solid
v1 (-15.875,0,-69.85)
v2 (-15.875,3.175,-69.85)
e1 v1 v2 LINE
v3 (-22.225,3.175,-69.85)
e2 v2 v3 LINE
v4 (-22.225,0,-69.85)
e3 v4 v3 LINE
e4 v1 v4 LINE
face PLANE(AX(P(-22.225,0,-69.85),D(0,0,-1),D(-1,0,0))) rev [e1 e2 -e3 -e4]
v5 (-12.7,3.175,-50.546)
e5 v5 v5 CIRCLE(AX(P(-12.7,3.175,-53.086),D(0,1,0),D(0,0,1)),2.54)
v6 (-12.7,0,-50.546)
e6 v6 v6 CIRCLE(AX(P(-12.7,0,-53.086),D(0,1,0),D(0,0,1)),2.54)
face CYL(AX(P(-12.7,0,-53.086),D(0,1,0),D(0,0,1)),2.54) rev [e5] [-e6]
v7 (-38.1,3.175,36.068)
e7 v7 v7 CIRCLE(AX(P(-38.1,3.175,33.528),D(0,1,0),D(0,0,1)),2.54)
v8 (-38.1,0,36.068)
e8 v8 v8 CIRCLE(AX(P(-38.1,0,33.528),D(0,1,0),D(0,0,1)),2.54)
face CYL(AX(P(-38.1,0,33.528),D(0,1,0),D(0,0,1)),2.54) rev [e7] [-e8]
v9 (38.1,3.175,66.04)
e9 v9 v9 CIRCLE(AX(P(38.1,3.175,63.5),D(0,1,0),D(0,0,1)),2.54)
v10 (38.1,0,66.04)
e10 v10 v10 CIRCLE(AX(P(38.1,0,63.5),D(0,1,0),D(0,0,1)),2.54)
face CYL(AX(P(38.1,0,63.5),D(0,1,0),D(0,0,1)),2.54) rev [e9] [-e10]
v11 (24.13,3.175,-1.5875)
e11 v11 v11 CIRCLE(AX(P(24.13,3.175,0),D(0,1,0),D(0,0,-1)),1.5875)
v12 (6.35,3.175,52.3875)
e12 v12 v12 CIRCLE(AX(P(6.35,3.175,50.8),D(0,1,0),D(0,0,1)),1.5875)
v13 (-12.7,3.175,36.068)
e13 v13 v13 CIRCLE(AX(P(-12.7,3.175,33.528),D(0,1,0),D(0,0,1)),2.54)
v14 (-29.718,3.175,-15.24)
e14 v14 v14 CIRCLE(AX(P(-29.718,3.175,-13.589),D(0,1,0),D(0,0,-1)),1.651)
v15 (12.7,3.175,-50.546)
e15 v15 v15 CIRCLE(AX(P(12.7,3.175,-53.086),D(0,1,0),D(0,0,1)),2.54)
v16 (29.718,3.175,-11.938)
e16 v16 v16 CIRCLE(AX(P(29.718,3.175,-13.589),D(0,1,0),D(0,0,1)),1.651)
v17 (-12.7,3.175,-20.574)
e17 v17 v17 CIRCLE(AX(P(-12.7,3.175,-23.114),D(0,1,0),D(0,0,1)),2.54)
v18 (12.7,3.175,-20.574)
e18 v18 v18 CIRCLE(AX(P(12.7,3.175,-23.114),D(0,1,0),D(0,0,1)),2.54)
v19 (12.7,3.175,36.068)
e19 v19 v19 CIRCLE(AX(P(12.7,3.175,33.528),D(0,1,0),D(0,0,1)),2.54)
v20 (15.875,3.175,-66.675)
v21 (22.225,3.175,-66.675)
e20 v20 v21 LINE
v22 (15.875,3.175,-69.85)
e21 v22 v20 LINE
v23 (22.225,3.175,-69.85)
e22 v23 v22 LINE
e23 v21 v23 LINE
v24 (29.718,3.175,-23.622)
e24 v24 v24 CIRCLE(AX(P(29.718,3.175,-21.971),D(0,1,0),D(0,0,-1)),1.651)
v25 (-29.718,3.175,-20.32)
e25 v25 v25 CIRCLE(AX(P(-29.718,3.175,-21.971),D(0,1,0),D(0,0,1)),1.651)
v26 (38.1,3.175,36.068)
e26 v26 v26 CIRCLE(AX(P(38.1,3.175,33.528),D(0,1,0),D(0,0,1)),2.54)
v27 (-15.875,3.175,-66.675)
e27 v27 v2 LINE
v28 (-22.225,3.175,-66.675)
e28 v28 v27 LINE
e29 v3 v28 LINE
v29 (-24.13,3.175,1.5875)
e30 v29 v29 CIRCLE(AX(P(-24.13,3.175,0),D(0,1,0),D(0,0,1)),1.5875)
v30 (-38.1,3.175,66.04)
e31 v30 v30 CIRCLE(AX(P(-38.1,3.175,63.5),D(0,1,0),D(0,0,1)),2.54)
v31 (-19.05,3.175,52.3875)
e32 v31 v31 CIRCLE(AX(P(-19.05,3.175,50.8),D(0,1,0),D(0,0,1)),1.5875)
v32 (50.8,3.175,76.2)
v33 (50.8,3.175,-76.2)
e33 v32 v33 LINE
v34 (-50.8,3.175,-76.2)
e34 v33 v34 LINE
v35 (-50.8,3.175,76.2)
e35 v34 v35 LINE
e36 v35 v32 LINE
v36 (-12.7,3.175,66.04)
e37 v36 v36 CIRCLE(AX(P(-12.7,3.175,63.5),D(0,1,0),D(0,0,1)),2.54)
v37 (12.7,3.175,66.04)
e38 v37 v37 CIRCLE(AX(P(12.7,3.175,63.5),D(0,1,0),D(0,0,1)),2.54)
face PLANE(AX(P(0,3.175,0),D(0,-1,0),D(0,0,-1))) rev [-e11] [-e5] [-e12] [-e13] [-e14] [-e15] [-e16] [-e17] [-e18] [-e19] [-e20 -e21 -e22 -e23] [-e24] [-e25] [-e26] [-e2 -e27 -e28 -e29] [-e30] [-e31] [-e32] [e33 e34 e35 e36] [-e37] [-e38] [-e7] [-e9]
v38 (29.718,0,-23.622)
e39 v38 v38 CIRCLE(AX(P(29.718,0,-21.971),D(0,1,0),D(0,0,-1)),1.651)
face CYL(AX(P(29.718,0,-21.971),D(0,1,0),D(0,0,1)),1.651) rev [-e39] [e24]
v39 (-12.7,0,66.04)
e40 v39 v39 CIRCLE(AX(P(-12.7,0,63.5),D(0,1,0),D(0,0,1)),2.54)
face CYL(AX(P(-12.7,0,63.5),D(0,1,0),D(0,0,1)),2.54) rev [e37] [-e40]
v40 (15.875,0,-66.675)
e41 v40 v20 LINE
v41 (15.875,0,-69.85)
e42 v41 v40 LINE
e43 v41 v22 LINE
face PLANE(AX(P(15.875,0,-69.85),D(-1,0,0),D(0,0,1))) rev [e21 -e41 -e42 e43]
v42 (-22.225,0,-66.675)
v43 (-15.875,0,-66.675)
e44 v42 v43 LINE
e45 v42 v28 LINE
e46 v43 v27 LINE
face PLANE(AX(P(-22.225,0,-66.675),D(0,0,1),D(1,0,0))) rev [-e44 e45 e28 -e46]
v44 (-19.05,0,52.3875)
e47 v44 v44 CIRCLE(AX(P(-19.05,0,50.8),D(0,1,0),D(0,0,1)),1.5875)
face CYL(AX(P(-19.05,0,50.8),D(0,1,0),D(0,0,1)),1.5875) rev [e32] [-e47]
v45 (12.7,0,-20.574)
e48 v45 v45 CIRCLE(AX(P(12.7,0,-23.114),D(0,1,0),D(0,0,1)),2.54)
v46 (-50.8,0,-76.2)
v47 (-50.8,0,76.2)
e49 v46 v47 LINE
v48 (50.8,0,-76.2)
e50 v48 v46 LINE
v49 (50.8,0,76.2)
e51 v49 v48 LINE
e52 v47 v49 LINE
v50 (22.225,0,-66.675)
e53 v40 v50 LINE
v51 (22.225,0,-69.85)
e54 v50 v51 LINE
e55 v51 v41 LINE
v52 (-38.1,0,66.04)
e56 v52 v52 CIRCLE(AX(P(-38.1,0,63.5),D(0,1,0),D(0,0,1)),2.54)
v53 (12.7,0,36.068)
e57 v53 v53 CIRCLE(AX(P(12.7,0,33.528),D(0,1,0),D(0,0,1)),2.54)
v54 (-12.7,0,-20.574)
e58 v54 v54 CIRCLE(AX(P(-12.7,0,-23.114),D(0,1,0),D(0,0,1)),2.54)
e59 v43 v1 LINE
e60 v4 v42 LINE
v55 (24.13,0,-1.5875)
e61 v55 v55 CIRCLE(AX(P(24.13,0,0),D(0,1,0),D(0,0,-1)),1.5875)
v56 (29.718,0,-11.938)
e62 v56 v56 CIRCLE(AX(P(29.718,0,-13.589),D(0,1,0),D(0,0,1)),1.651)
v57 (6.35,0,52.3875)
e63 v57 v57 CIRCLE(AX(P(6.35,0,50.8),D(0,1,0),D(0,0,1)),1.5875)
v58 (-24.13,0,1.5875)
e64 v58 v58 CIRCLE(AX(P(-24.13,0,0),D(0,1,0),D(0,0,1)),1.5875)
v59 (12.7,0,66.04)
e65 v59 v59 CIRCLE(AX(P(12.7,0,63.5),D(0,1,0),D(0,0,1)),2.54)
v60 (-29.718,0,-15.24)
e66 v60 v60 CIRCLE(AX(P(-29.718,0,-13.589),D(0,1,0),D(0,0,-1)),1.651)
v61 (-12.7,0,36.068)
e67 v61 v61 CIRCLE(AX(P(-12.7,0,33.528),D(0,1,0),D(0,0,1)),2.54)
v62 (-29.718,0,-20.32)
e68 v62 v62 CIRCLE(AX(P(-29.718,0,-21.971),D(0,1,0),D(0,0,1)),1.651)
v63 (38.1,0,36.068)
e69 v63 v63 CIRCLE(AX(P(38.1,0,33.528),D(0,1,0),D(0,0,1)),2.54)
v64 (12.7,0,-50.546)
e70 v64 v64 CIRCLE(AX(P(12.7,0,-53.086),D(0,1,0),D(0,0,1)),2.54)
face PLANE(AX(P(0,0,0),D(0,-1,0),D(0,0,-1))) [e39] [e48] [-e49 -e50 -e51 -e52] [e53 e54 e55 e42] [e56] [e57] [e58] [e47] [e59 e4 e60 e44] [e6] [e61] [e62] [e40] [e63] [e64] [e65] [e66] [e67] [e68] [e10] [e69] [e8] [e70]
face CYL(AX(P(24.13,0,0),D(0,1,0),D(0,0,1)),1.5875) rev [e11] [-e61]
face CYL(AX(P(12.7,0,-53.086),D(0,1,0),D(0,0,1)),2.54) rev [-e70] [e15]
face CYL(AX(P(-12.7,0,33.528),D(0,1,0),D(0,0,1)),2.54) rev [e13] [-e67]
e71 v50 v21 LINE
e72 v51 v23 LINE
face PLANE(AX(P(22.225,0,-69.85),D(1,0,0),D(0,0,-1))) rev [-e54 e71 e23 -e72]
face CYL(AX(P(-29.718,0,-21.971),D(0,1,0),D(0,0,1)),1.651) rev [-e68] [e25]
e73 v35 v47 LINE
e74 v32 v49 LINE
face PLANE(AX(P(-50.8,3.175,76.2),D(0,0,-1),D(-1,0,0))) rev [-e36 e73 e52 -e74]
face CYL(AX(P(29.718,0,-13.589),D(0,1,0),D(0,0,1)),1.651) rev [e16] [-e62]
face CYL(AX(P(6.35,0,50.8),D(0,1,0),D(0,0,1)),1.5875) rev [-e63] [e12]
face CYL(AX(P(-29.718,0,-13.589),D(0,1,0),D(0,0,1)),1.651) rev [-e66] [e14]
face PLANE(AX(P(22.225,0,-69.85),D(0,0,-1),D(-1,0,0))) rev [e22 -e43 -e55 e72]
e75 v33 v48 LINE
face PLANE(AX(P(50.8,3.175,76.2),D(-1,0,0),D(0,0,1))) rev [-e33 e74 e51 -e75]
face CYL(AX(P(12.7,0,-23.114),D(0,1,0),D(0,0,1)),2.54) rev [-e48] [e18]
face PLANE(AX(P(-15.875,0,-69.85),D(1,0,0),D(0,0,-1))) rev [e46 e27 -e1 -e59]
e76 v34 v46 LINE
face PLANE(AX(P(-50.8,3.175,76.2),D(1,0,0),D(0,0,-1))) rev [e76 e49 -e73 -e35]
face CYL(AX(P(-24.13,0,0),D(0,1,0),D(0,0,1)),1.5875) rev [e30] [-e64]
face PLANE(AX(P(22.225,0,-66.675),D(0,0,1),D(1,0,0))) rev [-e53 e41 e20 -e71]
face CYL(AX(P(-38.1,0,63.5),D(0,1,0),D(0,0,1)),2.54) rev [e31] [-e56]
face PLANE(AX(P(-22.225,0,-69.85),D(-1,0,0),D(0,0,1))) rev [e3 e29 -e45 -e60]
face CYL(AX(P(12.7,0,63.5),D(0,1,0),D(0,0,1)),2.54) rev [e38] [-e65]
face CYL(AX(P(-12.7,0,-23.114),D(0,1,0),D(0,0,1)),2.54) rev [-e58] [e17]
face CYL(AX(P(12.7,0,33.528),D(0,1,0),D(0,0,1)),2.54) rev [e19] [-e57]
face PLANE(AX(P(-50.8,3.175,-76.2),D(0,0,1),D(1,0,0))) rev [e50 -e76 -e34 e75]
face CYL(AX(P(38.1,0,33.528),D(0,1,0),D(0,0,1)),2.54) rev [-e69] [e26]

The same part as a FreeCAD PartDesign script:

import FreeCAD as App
import Part
import Sketcher
Q = App.Units.Quantity

doc = App.newDocument("Part")
body = doc.addObject("PartDesign::Body", "Body")

# Sketch on XZ plane
sketch1 = doc.addObject("Sketcher::SketchObject", "Sketch")
body.addObject(sketch1)
sketch1.AttachmentSupport = (doc.XZ_Plane, [""])
sketch1.MapMode = "FlatFace"
sketch1.addGeometry([
    Part.LineSegment(App.Vector(-51, -76, 0), App.Vector(-51, 76, 0)),
    Part.LineSegment(App.Vector(-51, 76, 0), App.Vector(51, 76, 0)),
    Part.LineSegment(App.Vector(51, 76, 0), App.Vector(51, -76, 0)),
    Part.LineSegment(App.Vector(51, -76, 0), App.Vector(-51, -76, 0)),
], False)
sketch1.addConstraint([
    Sketcher.Constraint("Coincident", 0, 2, 1, 1),
    Sketcher.Constraint("Coincident", 1, 2, 2, 1),
    Sketcher.Constraint("Coincident", 2, 2, 3, 1),
    Sketcher.Constraint("Coincident", 3, 2, 0, 1),
    Sketcher.Constraint("Vertical", 0),
    Sketcher.Constraint("Horizontal", 1),
    Sketcher.Constraint("Vertical", 2),
    Sketcher.Constraint("Horizontal", 3),
    Sketcher.Constraint("Symmetric", 0, 2, 2, 2, -1, 1),
    Sketcher.Constraint("DistanceX", 1, 1, 1, 2, Q("4 in")),
    Sketcher.Constraint("DistanceY", 0, 1, 0, 2, Q("6 in")),
])
pad1 = doc.addObject("PartDesign::Pad", "Pad")
body.addObject(pad1)
pad1.Profile = sketch1
pad1.Length = Q("0.125 in")
pad1.Reversed = True

# Sketch on XZ plane
sketch2 = doc.addObject("Sketcher::SketchObject", "Sketch001")
body.addObject(sketch2)
sketch2.AttachmentSupport = (doc.XZ_Plane, [""])
sketch2.MapMode = "FlatFace"
sketch2.AttachmentOffset = App.Placement(App.Vector(0, 0, -0.125 * 25.4), App.Rotation())
sketch2.addGeometry([
    Part.Circle(App.Vector(-38.1, 63.5, 0), App.Vector(0, 0, 1), 2.5),  # 0
    Part.Circle(App.Vector(-12.7, 63.5, 0), App.Vector(0, 0, 1), 2.5),  # 1
    Part.Circle(App.Vector(12.7, 63.5, 0), App.Vector(0, 0, 1), 2.5),  # 2
    Part.Circle(App.Vector(38.1, 63.5, 0), App.Vector(0, 0, 1), 2.5),  # 3
    Part.Circle(App.Vector(-38.1, 33.5, 0), App.Vector(0, 0, 1), 2.5),  # 4
    Part.Circle(App.Vector(-12.7, 33.5, 0), App.Vector(0, 0, 1), 2.5),  # 5
    Part.Circle(App.Vector(12.7, 33.5, 0), App.Vector(0, 0, 1), 2.5),  # 6
    Part.Circle(App.Vector(38.1, 33.5, 0), App.Vector(0, 0, 1), 2.5),  # 7
    Part.Circle(App.Vector(-12.7, -53.1, 0), App.Vector(0, 0, 1), 2.5),  # 8
    Part.Circle(App.Vector(-12.7, -23.1, 0), App.Vector(0, 0, 1), 2.5),  # 9
    Part.Circle(App.Vector(12.7, -23.1, 0), App.Vector(0, 0, 1), 2.5),  # 10
    Part.Circle(App.Vector(12.7, -53.1, 0), App.Vector(0, 0, 1), 2.5),  # 11
], False)
sketch2.addConstraint([
    Sketcher.Constraint("Equal", 0, 1),
    Sketcher.Constraint("Equal", 1, 2),
    Sketcher.Constraint("Equal", 2, 3),
    Sketcher.Constraint("Equal", 3, 4),
    Sketcher.Constraint("Equal", 4, 5),
    Sketcher.Constraint("Equal", 5, 6),
    Sketcher.Constraint("Equal", 6, 7),
    Sketcher.Constraint("Equal", 7, 8),
    Sketcher.Constraint("Equal", 8, 9),
    Sketcher.Constraint("Equal", 9, 10),
    Sketcher.Constraint("Equal", 10, 11),
    Sketcher.Constraint("Symmetric", 1, 3, 2, 3, -2),
    Sketcher.Constraint("Symmetric", 0, 3, 3, 3, -2),
    Sketcher.Constraint("Symmetric", 5, 3, 6, 3, -2),
    Sketcher.Constraint("Symmetric", 4, 3, 7, 3, -2),
    Sketcher.Constraint("Symmetric", 9, 3, 10, 3, -2),
    Sketcher.Constraint("Symmetric", 8, 3, 11, 3, -2),
    Sketcher.Constraint("Horizontal", 0, 3, 1, 3),
    Sketcher.Constraint("Horizontal", 4, 3, 5, 3),
    Sketcher.Constraint("Vertical", 0, 3, 4, 3),
    Sketcher.Constraint("Vertical", 1, 3, 5, 3),
    Sketcher.Constraint("Vertical", 5, 3, 8, 3),
    Sketcher.Constraint("Vertical", 8, 3, 9, 3),
    Sketcher.Constraint("Diameter", 0, Q("0.2 in")),
    Sketcher.Constraint("DistanceX", 0, 3, 1, 3, Q("1 in")),
    Sketcher.Constraint("DistanceX", 1, 3, 2, 3, Q("1 in")),
    Sketcher.Constraint("DistanceY", -1, 1, 0, 3, Q("2.5 in")),
    Sketcher.Constraint("DistanceY", -1, 1, 4, 3, Q("1.32 in")),
    Sketcher.Constraint("DistanceY", 8, 3, -1, 1, Q("2.09 in")),
    Sketcher.Constraint("DistanceY", 9, 3, -1, 1, Q("0.91 in")),
])
pocket1 = doc.addObject("PartDesign::Pocket", "Pocket")
body.addObject(pocket1)
pocket1.Profile = sketch2
pocket1.Type = "ThroughAll"
pocket1.Reversed = True

# Sketch on XZ plane
sketch3 = doc.addObject("Sketcher::SketchObject", "Sketch002")
body.addObject(sketch3)
sketch3.AttachmentSupport = (doc.XZ_Plane, [""])
sketch3.MapMode = "FlatFace"
sketch3.AttachmentOffset = App.Placement(App.Vector(0, 0, -0.125 * 25.4), App.Rotation())
sketch3.addGeometry([
    Part.Circle(App.Vector(29.7, -13.6, 0), App.Vector(0, 0, 1), 1.7),
    Part.Circle(App.Vector(29.7, -22, 0), App.Vector(0, 0, 1), 1.7),
    Part.Circle(App.Vector(-29.7, -22, 0), App.Vector(0, 0, 1), 1.7),
    Part.Circle(App.Vector(-29.7, -13.6, 0), App.Vector(0, 0, 1), 1.7),
], False)
sketch3.addConstraint([
    Sketcher.Constraint("Equal", 0, 1),
    Sketcher.Constraint("Equal", 1, 2),
    Sketcher.Constraint("Equal", 2, 3),
    Sketcher.Constraint("Symmetric", 1, 3, 2, 3, -2),
    Sketcher.Constraint("Symmetric", 0, 3, 3, 3, -2),
    Sketcher.Constraint("Vertical", 0, 3, 1, 3),
    Sketcher.Constraint("Diameter", 0, Q("0.13 in")),
    Sketcher.Constraint("DistanceX", -1, 1, 0, 3, Q("1.17 in")),
    Sketcher.Constraint("DistanceY", 1, 3, 0, 3, Q("0.33 in")),
    Sketcher.Constraint("DistanceY", 0, 3, -1, 1, Q("0.535 in")),
])
pocket2 = doc.addObject("PartDesign::Pocket", "Pocket001")
body.addObject(pocket2)
pocket2.Profile = sketch3
pocket2.Type = "ThroughAll"
pocket2.Reversed = True

# Sketch on XZ plane
sketch4 = doc.addObject("Sketcher::SketchObject", "Sketch003")
body.addObject(sketch4)
sketch4.AttachmentSupport = (doc.XZ_Plane, [""])
sketch4.MapMode = "FlatFace"
sketch4.AttachmentOffset = App.Placement(App.Vector(0, 0, -0.125 * 25.4), App.Rotation())
sketch4.addGeometry([
    Part.Circle(App.Vector(-24.1, 0, 0), App.Vector(0, 0, 1), 1.6),
    Part.Circle(App.Vector(24.1, 0, 0), App.Vector(0, 0, 1), 1.6),
    Part.Circle(App.Vector(-19.1, 50.8, 0), App.Vector(0, 0, 1), 1.6),
    Part.Circle(App.Vector(6.3, 50.8, 0), App.Vector(0, 0, 1), 1.6),
], False)
sketch4.addConstraint([
    Sketcher.Constraint("Equal", 0, 1),
    Sketcher.Constraint("Equal", 1, 2),
    Sketcher.Constraint("Equal", 2, 3),
    Sketcher.Constraint("Symmetric", 0, 3, 1, 3, -1, 1),
    Sketcher.Constraint("PointOnObject", 0, 3, -1),
    Sketcher.Constraint("Horizontal", 2, 3, 3, 3),
    Sketcher.Constraint("Diameter", 0, Q("0.125 in")),
    Sketcher.Constraint("DistanceY", -1, 1, 2, 3, Q("2 in")),
    Sketcher.Constraint("DistanceX", 2, 3, 3, 3, Q("1 in")),
    Sketcher.Constraint("DistanceX", 0, 3, 1, 3, Q("1.9 in")),
    Sketcher.Constraint("DistanceX", 0, 3, 2, 3, Q("0.2 in")),
])
pocket3 = doc.addObject("PartDesign::Pocket", "Pocket002")
body.addObject(pocket3)
pocket3.Profile = sketch4
pocket3.Type = "ThroughAll"
pocket3.Reversed = True

# Sketch on XZ plane
sketch5 = doc.addObject("Sketcher::SketchObject", "Sketch004")
body.addObject(sketch5)
sketch5.AttachmentSupport = (doc.XZ_Plane, [""])
sketch5.MapMode = "FlatFace"
sketch5.AttachmentOffset = App.Placement(App.Vector(0, 0, -0.125 * 25.4), App.Rotation())
sketch5.addGeometry([
    Part.LineSegment(App.Vector(15.9, -69.8, 0), App.Vector(15.9, -66.7, 0)),  # 0
    Part.LineSegment(App.Vector(15.9, -66.7, 0), App.Vector(22.2, -66.7, 0)),  # 1
    Part.LineSegment(App.Vector(22.2, -66.7, 0), App.Vector(22.2, -69.8, 0)),  # 2
    Part.LineSegment(App.Vector(22.2, -69.8, 0), App.Vector(15.9, -69.8, 0)),  # 3
    Part.LineSegment(App.Vector(-22.2, -69.8, 0), App.Vector(-22.2, -66.7, 0)),  # 4
    Part.LineSegment(App.Vector(-22.2, -66.7, 0), App.Vector(-15.9, -66.7, 0)),  # 5
    Part.LineSegment(App.Vector(-15.9, -66.7, 0), App.Vector(-15.9, -69.8, 0)),  # 6
    Part.LineSegment(App.Vector(-15.9, -69.8, 0), App.Vector(-22.2, -69.8, 0)),  # 7
], False)
sketch5.addConstraint([
    Sketcher.Constraint("Coincident", 0, 2, 1, 1),
    Sketcher.Constraint("Coincident", 1, 2, 2, 1),
    Sketcher.Constraint("Coincident", 2, 2, 3, 1),
    Sketcher.Constraint("Coincident", 3, 2, 0, 1),
    Sketcher.Constraint("Coincident", 4, 2, 5, 1),
    Sketcher.Constraint("Coincident", 5, 2, 6, 1),
    Sketcher.Constraint("Coincident", 6, 2, 7, 1),
    Sketcher.Constraint("Coincident", 7, 2, 4, 1),
    Sketcher.Constraint("Vertical", 0),
    Sketcher.Constraint("Horizontal", 1),
    Sketcher.Constraint("Vertical", 2),
    Sketcher.Constraint("Horizontal", 3),
    Sketcher.Constraint("Vertical", 4),
    Sketcher.Constraint("Horizontal", 5),
    Sketcher.Constraint("Vertical", 6),
    Sketcher.Constraint("Horizontal", 7),
    Sketcher.Constraint("Symmetric", 1, 2, 4, 2, -2),
    Sketcher.Constraint("Symmetric", 3, 2, 6, 2, -2),
    Sketcher.Constraint("DistanceX", 1, 1, 1, 2, Q("0.25 in")),
    Sketcher.Constraint("DistanceX", 4, 2, 0, 2, Q("1.5 in")),
    Sketcher.Constraint("DistanceY", 0, 1, 0, 2, Q("0.125 in")),
    Sketcher.Constraint("DistanceY", 2, 2, -1, 1, Q("2.75 in")),
])
pocket4 = doc.addObject("PartDesign::Pocket", "Pocket003")
body.addObject(pocket4)
pocket4.Profile = sketch5
pocket4.Type = "ThroughAll"
pocket4.Reversed = True

doc.recompute()
